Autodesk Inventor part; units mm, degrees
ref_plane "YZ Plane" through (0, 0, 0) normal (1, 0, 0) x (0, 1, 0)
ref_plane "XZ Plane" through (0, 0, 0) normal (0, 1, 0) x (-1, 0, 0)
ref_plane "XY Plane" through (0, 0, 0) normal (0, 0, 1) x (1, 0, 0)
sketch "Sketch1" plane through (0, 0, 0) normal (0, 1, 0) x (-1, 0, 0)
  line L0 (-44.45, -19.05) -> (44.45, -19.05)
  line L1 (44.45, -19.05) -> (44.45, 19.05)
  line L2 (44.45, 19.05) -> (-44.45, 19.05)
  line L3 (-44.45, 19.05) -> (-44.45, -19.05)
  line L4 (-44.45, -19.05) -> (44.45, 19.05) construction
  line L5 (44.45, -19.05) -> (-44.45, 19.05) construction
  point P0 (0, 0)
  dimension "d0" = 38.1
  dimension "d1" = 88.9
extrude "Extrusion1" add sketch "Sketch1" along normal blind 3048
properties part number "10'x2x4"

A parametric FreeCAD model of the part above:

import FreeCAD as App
import Part
import Sketcher
from FreeCAD import Vector
Q = App.Units.Quantity


def add_polygon(sketch, points):
    """Adds a closed chain of lines whose ends are joined by coincident constraints."""
    first, n = sketch.GeometryCount, len(points)
    for a, b in zip(points, points[1:] + points[:1]):
        sketch.addGeometry(Part.LineSegment(App.Vector(*a, 0), App.Vector(*b, 0)), False)
    for i in range(n):
        sketch.addConstraint(Sketcher.Constraint("Coincident", first + i, 2, first + (i + 1) % n, 1))

doc = App.newDocument("Part")
body = doc.addObject("PartDesign::Body", "Body")

sketch1 = doc.addObject("Sketcher::SketchObject", "Sketch")
body.addObject(sketch1)
sketch1.AttachmentSupport = (doc.XZ_Plane, [""])
sketch1.MapMode = "FlatFace"
add_polygon(sketch1, [(44, 19), (44, -19), (-44, -19), (-44, 19)])
sketch1.addConstraint([
    Sketcher.Constraint("Vertical", 0),
    Sketcher.Constraint("Horizontal", 1),
    Sketcher.Constraint("Vertical", 2),
    Sketcher.Constraint("Horizontal", 3),
    Sketcher.Constraint("Symmetric", 0, 2, 2, 2, -1, 1),
    Sketcher.Constraint("DistanceX", 1, 2, 1, 1, Q("3.5 in")),
    Sketcher.Constraint("DistanceY", 0, 2, 0, 1, Q("1.5 in")),
])
pad1 = doc.addObject("PartDesign::Pad", "Pad")
body.addObject(pad1)
pad1.Profile = sketch1
pad1.Length = Q("120 in")
pad1.Reversed = True

doc.recompute()
